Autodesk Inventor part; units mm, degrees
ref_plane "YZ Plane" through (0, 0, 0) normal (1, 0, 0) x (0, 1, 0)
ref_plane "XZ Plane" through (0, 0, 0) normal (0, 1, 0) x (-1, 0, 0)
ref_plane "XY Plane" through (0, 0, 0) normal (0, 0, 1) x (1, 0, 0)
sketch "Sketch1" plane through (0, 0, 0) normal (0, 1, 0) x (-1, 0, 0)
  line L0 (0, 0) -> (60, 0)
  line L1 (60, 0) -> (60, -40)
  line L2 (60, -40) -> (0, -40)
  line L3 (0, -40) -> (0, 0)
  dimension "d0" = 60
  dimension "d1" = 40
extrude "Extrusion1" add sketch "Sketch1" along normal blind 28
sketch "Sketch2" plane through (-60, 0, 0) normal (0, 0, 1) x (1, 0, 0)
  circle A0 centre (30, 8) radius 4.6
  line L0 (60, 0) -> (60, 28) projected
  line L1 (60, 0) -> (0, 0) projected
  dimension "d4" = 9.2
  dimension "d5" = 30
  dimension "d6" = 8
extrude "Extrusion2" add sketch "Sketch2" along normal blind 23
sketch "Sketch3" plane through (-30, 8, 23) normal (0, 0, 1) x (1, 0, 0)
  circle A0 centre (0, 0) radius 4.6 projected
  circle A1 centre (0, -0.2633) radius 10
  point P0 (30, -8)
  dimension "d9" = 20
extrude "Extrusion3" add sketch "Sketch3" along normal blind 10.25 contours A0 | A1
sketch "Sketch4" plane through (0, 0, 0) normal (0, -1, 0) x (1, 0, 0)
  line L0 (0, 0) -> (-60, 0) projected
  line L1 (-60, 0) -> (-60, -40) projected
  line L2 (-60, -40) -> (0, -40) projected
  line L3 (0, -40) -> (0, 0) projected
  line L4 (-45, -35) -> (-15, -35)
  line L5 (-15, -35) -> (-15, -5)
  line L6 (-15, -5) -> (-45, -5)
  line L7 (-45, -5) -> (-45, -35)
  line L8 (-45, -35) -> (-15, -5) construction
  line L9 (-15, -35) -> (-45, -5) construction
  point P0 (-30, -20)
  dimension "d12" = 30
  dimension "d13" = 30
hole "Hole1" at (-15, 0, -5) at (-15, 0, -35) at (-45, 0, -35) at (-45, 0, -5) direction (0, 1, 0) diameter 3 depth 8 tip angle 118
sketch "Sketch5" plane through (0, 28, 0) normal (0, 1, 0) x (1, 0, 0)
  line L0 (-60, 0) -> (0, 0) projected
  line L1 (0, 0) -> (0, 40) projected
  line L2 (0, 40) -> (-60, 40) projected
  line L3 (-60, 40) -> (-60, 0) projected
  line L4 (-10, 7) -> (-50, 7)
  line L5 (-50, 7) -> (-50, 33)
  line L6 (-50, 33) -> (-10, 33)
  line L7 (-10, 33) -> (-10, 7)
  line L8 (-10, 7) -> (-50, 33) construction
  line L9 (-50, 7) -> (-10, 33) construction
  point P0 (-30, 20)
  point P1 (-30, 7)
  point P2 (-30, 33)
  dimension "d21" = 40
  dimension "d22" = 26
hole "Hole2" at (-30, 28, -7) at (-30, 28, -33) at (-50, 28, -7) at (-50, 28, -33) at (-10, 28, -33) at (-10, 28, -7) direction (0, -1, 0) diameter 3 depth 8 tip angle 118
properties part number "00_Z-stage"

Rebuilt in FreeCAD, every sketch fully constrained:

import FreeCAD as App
import Part
import Sketcher

V = App.Vector


def add_polygon(sketch, points):
    """Adds a closed chain of lines whose ends are joined by coincident constraints."""
    first, n = sketch.GeometryCount, len(points)
    for a, b in zip(points, points[1:] + points[:1]):
        sketch.addGeometry(Part.LineSegment(App.Vector(*a, 0), App.Vector(*b, 0)), False)
    for i in range(n):
        sketch.addConstraint(Sketcher.Constraint("Coincident", first + i, 2, first + (i + 1) % n, 1))

doc = App.newDocument("Part")
body = doc.addObject("PartDesign::Body", "Body")

# Sketch on XZ plane
sketch1 = body.newObject("Sketcher::SketchObject", "Sketch")
sketch1.AttachmentSupport = (doc.getObject("XZ_Plane"), [""])
sketch1.MapMode = "FlatFace"
add_polygon(sketch1, [(-60, 0), (0, 0), (0, -40), (-60, -40)])  # lines 0-3
sketch1.addConstraint([
    Sketcher.Constraint("Horizontal", 0),
    Sketcher.Constraint("Vertical", 1),
    Sketcher.Constraint("Horizontal", 2),
    Sketcher.Constraint("Vertical", 3),
    Sketcher.Constraint("Coincident", 0, 2, -1, 1),
    Sketcher.Constraint("DistanceX", 0, 1, 0, 2, 60.0),
    Sketcher.Constraint("DistanceY", 1, 2, 1, 1, 40.0),
])
pad1 = body.newObject("PartDesign::Pad", "Pad")
pad1.Profile = sketch1
pad1.Length = 28
pad1.Reversed = True

# Sketch on XY plane
sketch2 = body.newObject("Sketcher::SketchObject", "Sketch001")
sketch2.AttachmentSupport = (doc.getObject("XY_Plane"), [""])
sketch2.MapMode = "FlatFace"
sketch2.addGeometry(Part.Circle(V(-30, 8, 0), V(0, 0, 1), 4.6), False)
sketch2.addConstraint([
    Sketcher.Constraint("Diameter", 0, 9.2),
    Sketcher.Constraint("DistanceX", 0, 3, -1, 1, 30.0),
    Sketcher.Constraint("DistanceY", -1, 1, 0, 3, 8.0),
])
pad2 = body.newObject("PartDesign::Pad", "Pad001")
pad2.Profile = sketch2
pad2.Length = 23

# Sketch on XY plane
sketch3 = body.newObject("Sketcher::SketchObject", "Sketch002")
sketch3.AttachmentSupport = (doc.getObject("XY_Plane"), [""])
sketch3.MapMode = "FlatFace"
sketch3.AttachmentOffset = App.Placement(V(0, 0, 23), App.Rotation())
sketch3.addGeometry(Part.Circle(V(-30, 7.7367, 0), V(0, 0, 1), 10), False)
sketch3.addConstraint([
    Sketcher.Constraint("Diameter", 0, 20.0),
    Sketcher.Constraint("DistanceX", 0, 3, -1, 1, 30.0),
    Sketcher.Constraint("DistanceY", -1, 1, 0, 3, 7.7367),
])
pad3 = body.newObject("PartDesign::Pad", "Pad002")
pad3.Profile = sketch3
pad3.Length = 10.25

# Sketch on XZ plane
sketch4 = body.newObject("Sketcher::SketchObject", "Sketch003")
sketch4.AttachmentSupport = (doc.getObject("XZ_Plane"), [""])
sketch4.MapMode = "FlatFace"
sketch4.addGeometry([
    Part.Circle(V(-15, -5, 0), V(0, 0, 1), 1.5),
    Part.Circle(V(-15, -35, 0), V(0, 0, 1), 1.5),
    Part.Circle(V(-45, -35, 0), V(0, 0, 1), 1.5),
    Part.Circle(V(-45, -5, 0), V(0, 0, 1), 1.5),
], False)
sketch4.addConstraint([
    Sketcher.Constraint("Equal", 0, 1),
    Sketcher.Constraint("Equal", 1, 2),
    Sketcher.Constraint("Equal", 2, 3),
    Sketcher.Constraint("Horizontal", 1, 3, 2, 3),
    Sketcher.Constraint("Horizontal", 0, 3, 3, 3),
    Sketcher.Constraint("Vertical", 0, 3, 1, 3),
    Sketcher.Constraint("Vertical", 2, 3, 3, 3),
    Sketcher.Constraint("Diameter", 0, 3.0),
    Sketcher.Constraint("DistanceX", 0, 3, -1, 1, 15.0),
    Sketcher.Constraint("DistanceY", 0, 3, -1, 1, 5.0),
    Sketcher.Constraint("DistanceY", 1, 3, -1, 1, 35.0),
    Sketcher.Constraint("DistanceX", 2, 3, -1, 1, 45.0),
])
doc.recompute()
hole = body.newObject("PartDesign::Hole", "Hole")
hole.Profile = sketch4
hole.ThreadType = "None"
hole.Diameter = 3
hole.DepthType = "Dimension"
hole.Depth = 8
hole.DrillPoint = "Angled"
hole.DrillPointAngle = 118

# Sketch on XZ plane
sketch5 = body.newObject("Sketcher::SketchObject", "Sketch004")
sketch5.AttachmentSupport = (doc.getObject("XZ_Plane"), [""])
sketch5.MapMode = "FlatFace"
sketch5.AttachmentOffset = App.Placement(V(0, 0, -28), App.Rotation())
sketch5.addGeometry([
    Part.Circle(V(-30, -7, 0), V(0, 0, 1), 1.5),  # 0
    Part.Circle(V(-30, -33, 0), V(0, 0, 1), 1.5),  # 1
    Part.Circle(V(-50, -7, 0), V(0, 0, 1), 1.5),  # 2
    Part.Circle(V(-50, -33, 0), V(0, 0, 1), 1.5),  # 3
    Part.Circle(V(-10, -33, 0), V(0, 0, 1), 1.5),  # 4
    Part.Circle(V(-10, -7, 0), V(0, 0, 1), 1.5),  # 5
], False)
sketch5.addConstraint([
    Sketcher.Constraint("Equal", 0, 1),
    Sketcher.Constraint("Equal", 1, 2),
    Sketcher.Constraint("Equal", 2, 3),
    Sketcher.Constraint("Equal", 3, 4),
    Sketcher.Constraint("Equal", 4, 5),
    Sketcher.Constraint("Horizontal", 0, 3, 2, 3),
    Sketcher.Constraint("Horizontal", 1, 3, 3, 3),
    Sketcher.Constraint("Horizontal", 3, 3, 4, 3),
    Sketcher.Constraint("Horizontal", 2, 3, 5, 3),
    Sketcher.Constraint("Vertical", 0, 3, 1, 3),
    Sketcher.Constraint("Vertical", 2, 3, 3, 3),
    Sketcher.Constraint("Vertical", 4, 3, 5, 3),
    Sketcher.Constraint("Diameter", 0, 3.0),
    Sketcher.Constraint("DistanceX", 0, 3, -1, 1, 30.0),
    Sketcher.Constraint("DistanceY", 0, 3, -1, 1, 7.0),
    Sketcher.Constraint("DistanceY", 1, 3, -1, 1, 33.0),
    Sketcher.Constraint("DistanceX", 2, 3, -1, 1, 50.0),
    Sketcher.Constraint("DistanceX", 4, 3, -1, 1, 10.0),
])
doc.recompute()
hole2 = body.newObject("PartDesign::Hole", "Hole001")
hole2.Profile = sketch5
hole2.ThreadType = "None"
hole2.Diameter = 3
hole2.DepthType = "Dimension"
hole2.Depth = 8
hole2.DrillPoint = "Angled"
hole2.DrillPointAngle = 118
hole2.Reversed = True

doc.recompute()
